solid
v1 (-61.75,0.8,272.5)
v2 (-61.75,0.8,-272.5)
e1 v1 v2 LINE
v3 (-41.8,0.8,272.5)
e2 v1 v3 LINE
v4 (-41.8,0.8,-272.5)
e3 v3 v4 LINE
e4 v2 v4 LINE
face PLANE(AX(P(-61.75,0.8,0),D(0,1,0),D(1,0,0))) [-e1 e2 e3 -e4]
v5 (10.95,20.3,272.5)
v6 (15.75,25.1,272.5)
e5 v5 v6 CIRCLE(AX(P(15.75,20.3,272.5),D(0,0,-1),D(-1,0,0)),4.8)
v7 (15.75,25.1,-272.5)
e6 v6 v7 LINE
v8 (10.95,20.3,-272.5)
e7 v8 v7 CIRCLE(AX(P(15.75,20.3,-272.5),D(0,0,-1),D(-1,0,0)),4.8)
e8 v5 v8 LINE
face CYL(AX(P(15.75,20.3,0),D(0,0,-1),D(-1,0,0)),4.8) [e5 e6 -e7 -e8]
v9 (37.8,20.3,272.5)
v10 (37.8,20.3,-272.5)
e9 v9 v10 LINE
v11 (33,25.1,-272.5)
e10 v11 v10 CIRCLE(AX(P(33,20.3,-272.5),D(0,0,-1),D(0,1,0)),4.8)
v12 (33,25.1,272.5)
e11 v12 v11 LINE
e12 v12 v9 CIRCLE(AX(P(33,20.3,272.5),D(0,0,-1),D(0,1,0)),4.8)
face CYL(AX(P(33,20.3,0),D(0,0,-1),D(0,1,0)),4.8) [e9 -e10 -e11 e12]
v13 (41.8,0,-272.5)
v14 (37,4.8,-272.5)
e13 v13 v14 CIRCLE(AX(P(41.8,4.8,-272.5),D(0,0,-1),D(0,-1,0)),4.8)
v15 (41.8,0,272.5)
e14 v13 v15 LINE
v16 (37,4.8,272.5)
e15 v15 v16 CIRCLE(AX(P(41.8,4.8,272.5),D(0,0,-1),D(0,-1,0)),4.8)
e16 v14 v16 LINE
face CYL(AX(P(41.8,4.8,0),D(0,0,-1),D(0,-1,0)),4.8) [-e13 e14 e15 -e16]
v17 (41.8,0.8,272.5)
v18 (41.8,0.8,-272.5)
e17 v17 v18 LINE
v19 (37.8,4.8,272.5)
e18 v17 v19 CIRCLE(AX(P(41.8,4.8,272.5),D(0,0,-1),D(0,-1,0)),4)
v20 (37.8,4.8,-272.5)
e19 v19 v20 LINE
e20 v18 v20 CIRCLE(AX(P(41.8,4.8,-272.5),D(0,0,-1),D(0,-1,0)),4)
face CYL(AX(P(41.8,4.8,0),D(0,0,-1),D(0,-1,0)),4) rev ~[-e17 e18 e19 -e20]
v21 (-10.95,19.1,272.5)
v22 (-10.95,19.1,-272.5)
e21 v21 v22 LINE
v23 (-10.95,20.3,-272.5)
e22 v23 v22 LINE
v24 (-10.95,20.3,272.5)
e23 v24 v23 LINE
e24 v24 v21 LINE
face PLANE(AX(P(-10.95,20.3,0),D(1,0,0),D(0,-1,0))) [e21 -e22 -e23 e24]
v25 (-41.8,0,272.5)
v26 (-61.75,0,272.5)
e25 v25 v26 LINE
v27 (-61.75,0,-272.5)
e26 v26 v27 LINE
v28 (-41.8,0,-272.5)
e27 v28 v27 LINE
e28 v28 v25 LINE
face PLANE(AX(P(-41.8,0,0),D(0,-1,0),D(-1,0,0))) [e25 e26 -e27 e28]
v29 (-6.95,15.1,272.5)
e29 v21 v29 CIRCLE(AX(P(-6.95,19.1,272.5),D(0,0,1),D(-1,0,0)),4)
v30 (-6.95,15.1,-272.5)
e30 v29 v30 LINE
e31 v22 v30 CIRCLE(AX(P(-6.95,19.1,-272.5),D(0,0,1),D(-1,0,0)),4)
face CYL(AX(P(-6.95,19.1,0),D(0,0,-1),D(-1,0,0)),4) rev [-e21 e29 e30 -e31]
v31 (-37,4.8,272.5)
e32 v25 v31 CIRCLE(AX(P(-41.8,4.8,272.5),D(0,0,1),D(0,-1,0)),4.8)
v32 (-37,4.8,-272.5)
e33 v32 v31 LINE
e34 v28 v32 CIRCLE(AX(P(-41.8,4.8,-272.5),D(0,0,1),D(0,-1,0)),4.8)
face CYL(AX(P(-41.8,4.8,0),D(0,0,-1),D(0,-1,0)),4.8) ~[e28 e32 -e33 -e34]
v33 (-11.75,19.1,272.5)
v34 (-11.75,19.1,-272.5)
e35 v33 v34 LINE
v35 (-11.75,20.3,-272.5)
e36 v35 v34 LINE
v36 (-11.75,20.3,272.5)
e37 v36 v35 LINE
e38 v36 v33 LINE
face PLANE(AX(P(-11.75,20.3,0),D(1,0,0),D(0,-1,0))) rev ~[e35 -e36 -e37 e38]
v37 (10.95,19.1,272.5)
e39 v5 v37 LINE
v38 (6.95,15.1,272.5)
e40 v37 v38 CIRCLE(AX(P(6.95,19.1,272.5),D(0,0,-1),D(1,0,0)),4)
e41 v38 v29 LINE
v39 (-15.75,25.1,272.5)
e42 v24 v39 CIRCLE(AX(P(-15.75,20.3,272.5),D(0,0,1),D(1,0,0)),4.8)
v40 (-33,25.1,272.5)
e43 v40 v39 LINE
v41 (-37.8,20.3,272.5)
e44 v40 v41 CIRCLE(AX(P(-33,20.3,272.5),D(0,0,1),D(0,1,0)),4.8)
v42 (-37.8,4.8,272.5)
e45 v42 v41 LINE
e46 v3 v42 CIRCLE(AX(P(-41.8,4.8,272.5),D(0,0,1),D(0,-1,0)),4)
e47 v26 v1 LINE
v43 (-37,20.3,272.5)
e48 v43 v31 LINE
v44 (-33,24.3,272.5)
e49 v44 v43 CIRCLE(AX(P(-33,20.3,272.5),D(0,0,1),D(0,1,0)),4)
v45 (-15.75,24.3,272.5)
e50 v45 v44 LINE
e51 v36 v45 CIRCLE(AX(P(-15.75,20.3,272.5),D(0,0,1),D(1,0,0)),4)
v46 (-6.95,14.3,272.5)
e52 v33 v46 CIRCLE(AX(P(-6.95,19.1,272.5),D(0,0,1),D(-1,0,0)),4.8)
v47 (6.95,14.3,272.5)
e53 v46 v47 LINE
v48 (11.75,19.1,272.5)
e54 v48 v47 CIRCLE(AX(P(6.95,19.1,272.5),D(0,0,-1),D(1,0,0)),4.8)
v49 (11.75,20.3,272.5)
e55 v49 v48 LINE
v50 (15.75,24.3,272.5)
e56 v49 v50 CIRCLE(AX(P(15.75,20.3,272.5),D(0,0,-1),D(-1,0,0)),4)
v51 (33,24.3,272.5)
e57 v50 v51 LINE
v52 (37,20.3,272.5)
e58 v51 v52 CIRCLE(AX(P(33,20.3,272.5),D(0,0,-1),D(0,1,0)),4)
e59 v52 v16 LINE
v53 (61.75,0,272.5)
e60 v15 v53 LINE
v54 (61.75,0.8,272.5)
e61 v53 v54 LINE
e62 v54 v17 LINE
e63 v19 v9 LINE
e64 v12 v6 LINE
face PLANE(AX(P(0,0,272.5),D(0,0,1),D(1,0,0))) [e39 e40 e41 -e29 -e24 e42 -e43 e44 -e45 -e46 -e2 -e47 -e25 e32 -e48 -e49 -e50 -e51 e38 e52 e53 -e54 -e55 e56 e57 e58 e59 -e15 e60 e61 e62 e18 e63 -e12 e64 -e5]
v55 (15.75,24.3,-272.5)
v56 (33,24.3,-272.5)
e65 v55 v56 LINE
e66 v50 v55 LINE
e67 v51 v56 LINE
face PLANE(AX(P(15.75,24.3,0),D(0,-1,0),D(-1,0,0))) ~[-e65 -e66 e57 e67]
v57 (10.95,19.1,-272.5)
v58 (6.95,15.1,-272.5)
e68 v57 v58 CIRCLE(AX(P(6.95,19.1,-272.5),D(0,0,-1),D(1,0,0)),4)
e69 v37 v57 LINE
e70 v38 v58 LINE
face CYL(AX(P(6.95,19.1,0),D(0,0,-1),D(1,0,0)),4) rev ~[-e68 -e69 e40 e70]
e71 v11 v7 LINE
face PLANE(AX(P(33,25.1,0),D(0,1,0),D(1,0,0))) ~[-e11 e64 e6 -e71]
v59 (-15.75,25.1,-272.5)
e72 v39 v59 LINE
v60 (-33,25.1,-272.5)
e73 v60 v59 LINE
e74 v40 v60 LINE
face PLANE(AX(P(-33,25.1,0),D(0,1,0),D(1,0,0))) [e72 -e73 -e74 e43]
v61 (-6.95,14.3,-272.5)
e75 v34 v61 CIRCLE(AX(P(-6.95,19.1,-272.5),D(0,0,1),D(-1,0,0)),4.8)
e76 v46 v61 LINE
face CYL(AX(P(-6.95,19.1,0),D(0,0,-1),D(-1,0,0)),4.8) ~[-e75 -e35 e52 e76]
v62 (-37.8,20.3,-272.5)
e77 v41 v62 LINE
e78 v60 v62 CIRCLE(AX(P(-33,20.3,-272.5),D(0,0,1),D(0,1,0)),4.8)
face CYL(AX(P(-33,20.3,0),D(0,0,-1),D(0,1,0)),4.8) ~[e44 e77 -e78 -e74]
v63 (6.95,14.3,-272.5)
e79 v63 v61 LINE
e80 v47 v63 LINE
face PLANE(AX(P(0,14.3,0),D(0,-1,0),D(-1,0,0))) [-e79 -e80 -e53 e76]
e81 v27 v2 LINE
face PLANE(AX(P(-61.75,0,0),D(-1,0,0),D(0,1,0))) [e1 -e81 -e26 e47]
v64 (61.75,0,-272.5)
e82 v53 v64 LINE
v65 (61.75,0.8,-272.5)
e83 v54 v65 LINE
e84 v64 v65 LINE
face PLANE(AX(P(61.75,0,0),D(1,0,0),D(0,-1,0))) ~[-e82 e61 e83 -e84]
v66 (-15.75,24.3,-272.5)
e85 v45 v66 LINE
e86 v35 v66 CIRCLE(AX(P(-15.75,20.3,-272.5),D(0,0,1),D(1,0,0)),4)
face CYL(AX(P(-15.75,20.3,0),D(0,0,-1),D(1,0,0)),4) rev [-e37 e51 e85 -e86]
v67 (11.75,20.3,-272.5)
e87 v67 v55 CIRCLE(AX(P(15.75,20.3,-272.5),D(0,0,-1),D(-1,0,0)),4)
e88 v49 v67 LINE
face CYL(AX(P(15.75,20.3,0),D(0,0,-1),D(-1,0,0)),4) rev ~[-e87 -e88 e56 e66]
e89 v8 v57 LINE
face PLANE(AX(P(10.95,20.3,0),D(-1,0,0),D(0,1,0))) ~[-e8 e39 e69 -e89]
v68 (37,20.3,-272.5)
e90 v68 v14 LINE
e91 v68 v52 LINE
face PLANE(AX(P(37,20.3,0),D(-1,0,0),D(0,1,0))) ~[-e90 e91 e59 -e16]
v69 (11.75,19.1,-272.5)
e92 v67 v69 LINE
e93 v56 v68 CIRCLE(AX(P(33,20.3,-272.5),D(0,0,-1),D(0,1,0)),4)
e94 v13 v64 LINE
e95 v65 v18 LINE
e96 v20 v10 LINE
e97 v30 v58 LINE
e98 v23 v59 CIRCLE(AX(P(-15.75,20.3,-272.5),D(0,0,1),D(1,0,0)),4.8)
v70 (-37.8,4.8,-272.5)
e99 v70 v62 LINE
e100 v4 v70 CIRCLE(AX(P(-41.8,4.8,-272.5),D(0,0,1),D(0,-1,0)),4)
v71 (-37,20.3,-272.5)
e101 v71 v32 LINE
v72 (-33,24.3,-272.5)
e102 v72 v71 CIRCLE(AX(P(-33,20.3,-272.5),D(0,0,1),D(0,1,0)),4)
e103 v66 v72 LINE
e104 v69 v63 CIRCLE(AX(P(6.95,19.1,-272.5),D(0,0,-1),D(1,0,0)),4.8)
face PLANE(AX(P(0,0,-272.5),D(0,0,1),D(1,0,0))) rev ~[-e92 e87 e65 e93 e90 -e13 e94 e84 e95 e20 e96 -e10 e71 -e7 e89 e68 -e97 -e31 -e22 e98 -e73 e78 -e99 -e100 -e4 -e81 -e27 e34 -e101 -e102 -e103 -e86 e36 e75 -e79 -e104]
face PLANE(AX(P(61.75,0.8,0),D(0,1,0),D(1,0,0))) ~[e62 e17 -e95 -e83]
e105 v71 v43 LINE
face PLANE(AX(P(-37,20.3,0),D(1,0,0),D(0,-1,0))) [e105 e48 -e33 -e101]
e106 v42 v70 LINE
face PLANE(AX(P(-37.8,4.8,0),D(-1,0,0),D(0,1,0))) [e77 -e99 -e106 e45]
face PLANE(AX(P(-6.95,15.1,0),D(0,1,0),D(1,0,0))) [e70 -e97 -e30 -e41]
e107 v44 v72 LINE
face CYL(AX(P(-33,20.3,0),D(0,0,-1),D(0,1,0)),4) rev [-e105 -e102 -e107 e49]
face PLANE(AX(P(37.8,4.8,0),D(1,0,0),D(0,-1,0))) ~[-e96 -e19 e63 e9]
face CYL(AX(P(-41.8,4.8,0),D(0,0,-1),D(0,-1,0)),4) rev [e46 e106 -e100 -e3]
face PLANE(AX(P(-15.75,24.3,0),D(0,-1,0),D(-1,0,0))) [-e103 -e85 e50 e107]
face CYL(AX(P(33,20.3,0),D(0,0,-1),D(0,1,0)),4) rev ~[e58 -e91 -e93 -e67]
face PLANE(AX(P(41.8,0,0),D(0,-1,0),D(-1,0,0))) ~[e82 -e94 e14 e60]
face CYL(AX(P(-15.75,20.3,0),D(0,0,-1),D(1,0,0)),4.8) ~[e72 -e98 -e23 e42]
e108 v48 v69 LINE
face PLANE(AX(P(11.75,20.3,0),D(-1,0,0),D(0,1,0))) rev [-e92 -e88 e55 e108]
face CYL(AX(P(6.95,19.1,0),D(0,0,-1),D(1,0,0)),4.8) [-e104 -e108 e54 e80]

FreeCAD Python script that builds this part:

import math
import FreeCAD as App
import Part
import Sketcher

V = App.Vector
Q = App.Units.Quantity

doc = App.newDocument("Part")
body = doc.addObject("PartDesign::Body", "Body")

sketch1 = body.newObject("Sketcher::SketchObject", "Sketch")
sketch1.AttachmentSupport = (doc.getObject("XY_Plane"), [""])
sketch1.MapMode = "FlatFace"
sketch1.addGeometry([
    Part.LineSegment(V(-61.8, 0, 0), V(-41.8, 0, 0)),
    Part.ArcOfCircle(Part.Circle(V(-41.8, 4.8, 0), V(0, 0, 1), 4.8), math.radians(-90), math.radians(0)),
    Part.LineSegment(V(-37, 4.8, 0), V(-37, 20.3, 0)),
    Part.ArcOfCircle(Part.Circle(V(-33, 20.3, 0), V(0, 0, 1), 4), math.radians(90), math.radians(180)),
    Part.LineSegment(V(-33, 24.3, 0), V(-15.8, 24.3, 0)),
    Part.ArcOfCircle(Part.Circle(V(-15.8, 20.3, 0), V(0, 0, 1), 4), math.radians(0), math.radians(90)),
    Part.LineSegment(V(-11.8, 20.3, 0), V(-11.8, 19.1, 0)),
    Part.ArcOfCircle(Part.Circle(V(-7, 19.1, 0), V(0, 0, 1), 4.8), math.radians(180), math.radians(270)),
    Part.LineSegment(V(-7, 14.3, 0), V(0, 14.3, 0)),
    Part.LineSegment(V(0, 14.3, 0), V(0, 15.1, 0)),
    Part.LineSegment(V(0, 15.1, 0), V(-7, 15.1, 0)),
    Part.ArcOfCircle(Part.Circle(V(-7, 19.1, 0), V(0, 0, 1), 4), math.radians(180), math.radians(270)),
    Part.LineSegment(V(-10.9, 19.1, 0), V(-10.9, 20.3, 0)),
    Part.ArcOfCircle(Part.Circle(V(-15.8, 20.3, 0), V(0, 0, 1), 4.8), math.radians(0), math.radians(90)),
    Part.LineSegment(V(-15.8, 25.1, 0), V(-33, 25.1, 0)),
    Part.ArcOfCircle(Part.Circle(V(-33, 20.3, 0), V(0, 0, 1), 4.8), math.radians(90), math.radians(180)),
    Part.LineSegment(V(-37.8, 20.3, 0), V(-37.8, 4.8, 0)),
    Part.ArcOfCircle(Part.Circle(V(-41.8, 4.8, 0), V(0, 0, 1), 4), math.radians(-90), math.radians(0)),
    Part.LineSegment(V(-41.8, 0.8, 0), V(-61.8, 0.8, 0)),
    Part.LineSegment(V(-61.8, 0.8, 0), V(-61.8, 0, 0)),
], False)
sketch1.addConstraint([
    Sketcher.Constraint("Tangent", 0, 2, 1, 1),
    Sketcher.Constraint("Tangent", 1, 2, 2, 1),
    Sketcher.Constraint("Tangent", 2, 2, 3, 2),
    Sketcher.Constraint("Tangent", 3, 1, 4, 1),
    Sketcher.Constraint("Tangent", 4, 2, 5, 2),
    Sketcher.Constraint("Tangent", 5, 1, 6, 1),
    Sketcher.Constraint("Tangent", 6, 2, 7, 1),
    Sketcher.Constraint("Tangent", 7, 2, 8, 1),
    Sketcher.Constraint("Coincident", 8, 2, 9, 1),
    Sketcher.Constraint("Coincident", 9, 2, 10, 1),
    Sketcher.Constraint("Tangent", 10, 2, 11, 2),
    Sketcher.Constraint("Tangent", 11, 1, 12, 1),
    Sketcher.Constraint("Tangent", 12, 2, 13, 1),
    Sketcher.Constraint("Tangent", 13, 2, 14, 1),
    Sketcher.Constraint("Tangent", 14, 2, 15, 1),
    Sketcher.Constraint("Tangent", 15, 2, 16, 1),
    Sketcher.Constraint("Tangent", 16, 2, 17, 2),
    Sketcher.Constraint("Tangent", 17, 1, 18, 1),
    Sketcher.Constraint("Coincident", 18, 2, 19, 1),
    Sketcher.Constraint("Coincident", 19, 2, 0, 1),
    Sketcher.Constraint("Horizontal", 0),
    Sketcher.Constraint("Vertical", 2),
    Sketcher.Constraint("Horizontal", 4),
    Sketcher.Constraint("Vertical", 6),
    Sketcher.Constraint("Horizontal", 8),
    Sketcher.Constraint("Vertical", 9),
    Sketcher.Constraint("Horizontal", 10),
    Sketcher.Constraint("Vertical", 12),
    Sketcher.Constraint("Horizontal", 14),
    Sketcher.Constraint("Vertical", 16),
    Sketcher.Constraint("Horizontal", 18),
    Sketcher.Constraint("Vertical", 19),
    Sketcher.Constraint("Coincident", 11, 3, 7, 3),
    Sketcher.Constraint("Coincident", 13, 3, 5, 3),
    Sketcher.Constraint("Coincident", 15, 3, 3, 3),
    Sketcher.Constraint("Coincident", 17, 3, 1, 3),
    Sketcher.Constraint("Equal", 3, 5),
    Sketcher.Constraint("Equal", 1, 7),
    Sketcher.Constraint("Equal", 5, 11),
    Sketcher.Constraint("PointOnObject", 0, 2, -1),
    Sketcher.Constraint("PointOnObject", 8, 2, -2),
    Sketcher.Constraint("Radius", 3, Q("4 mm")),
    Sketcher.Constraint("Radius", 1, Q("4.8 mm")),
    Sketcher.Constraint("DistanceX", 0, 1, 0, 2, Q("19.95 mm")),
    Sketcher.Constraint("DistanceX", 8, 1, 8, 2, Q("6.95 mm")),
    Sketcher.Constraint("DistanceY", -1, 1, 3, 1, Q("24.3 mm")),
    Sketcher.Constraint("DistanceY", -1, 1, 7, 2, Q("14.3 mm")),
    Sketcher.Constraint("DistanceX", 3, 3, -1, 1, Q("33 mm")),
])
pad1 = body.newObject("PartDesign::Pad", "Pad")
pad1.Profile = sketch1
pad1.Length = 545
pad1.Midplane = True
doc.recompute()

mirrored = body.newObject("PartDesign::Mirrored", "Mirrored")
mirrored.Originals = [pad1]
mirrored.MirrorPlane = (doc.getObject("YZ_Plane"), [""])
body.Tip = mirrored

doc.recompute()
